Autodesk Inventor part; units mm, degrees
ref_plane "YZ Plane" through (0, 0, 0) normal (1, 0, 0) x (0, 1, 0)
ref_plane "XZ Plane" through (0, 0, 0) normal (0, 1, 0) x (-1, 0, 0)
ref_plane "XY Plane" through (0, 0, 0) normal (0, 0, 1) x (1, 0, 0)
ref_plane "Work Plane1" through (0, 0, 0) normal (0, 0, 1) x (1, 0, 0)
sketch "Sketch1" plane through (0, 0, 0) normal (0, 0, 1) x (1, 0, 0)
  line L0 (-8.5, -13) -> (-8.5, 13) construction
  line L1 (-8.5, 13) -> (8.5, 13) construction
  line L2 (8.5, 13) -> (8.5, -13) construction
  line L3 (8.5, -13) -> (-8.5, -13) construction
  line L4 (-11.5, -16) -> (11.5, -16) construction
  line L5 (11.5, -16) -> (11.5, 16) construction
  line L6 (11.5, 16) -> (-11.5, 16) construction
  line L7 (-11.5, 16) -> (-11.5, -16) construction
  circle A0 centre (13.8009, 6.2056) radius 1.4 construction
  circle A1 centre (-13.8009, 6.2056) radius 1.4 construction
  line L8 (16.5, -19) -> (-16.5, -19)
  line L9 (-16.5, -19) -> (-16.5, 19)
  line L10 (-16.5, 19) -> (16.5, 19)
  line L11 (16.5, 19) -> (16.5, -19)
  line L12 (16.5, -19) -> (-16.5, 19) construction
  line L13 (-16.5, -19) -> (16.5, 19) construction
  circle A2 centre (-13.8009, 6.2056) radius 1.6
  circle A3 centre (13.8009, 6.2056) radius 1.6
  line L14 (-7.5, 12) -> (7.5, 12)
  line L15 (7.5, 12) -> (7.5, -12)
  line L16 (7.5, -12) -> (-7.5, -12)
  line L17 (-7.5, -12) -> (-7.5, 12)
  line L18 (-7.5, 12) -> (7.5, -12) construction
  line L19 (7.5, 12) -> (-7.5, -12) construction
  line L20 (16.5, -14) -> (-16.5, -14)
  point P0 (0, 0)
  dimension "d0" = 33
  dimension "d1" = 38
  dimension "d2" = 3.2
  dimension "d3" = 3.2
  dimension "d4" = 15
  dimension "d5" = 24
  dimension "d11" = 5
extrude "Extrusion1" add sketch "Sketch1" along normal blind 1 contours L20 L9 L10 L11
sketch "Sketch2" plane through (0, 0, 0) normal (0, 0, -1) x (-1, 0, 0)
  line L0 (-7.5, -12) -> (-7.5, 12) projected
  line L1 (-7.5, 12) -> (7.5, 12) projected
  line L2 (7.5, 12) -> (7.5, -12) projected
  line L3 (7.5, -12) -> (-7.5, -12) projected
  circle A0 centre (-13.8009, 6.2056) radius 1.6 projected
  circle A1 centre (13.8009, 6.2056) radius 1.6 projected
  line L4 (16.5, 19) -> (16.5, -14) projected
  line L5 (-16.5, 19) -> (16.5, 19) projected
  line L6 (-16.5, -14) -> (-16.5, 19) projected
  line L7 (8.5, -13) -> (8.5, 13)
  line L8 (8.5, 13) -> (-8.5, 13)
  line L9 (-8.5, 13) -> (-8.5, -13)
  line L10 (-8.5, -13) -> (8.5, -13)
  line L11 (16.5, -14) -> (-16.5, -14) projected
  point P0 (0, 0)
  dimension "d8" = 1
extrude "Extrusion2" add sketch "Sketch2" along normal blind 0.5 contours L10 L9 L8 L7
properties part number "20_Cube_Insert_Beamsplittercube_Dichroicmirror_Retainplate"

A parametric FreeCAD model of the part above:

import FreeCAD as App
import Part
import Sketcher
from FreeCAD import Vector

doc = App.newDocument("Part")
body = doc.addObject("PartDesign::Body", "Body")

# Sketch on XY plane
sketch1 = doc.addObject("Sketcher::SketchObject", "Sketch")
body.addObject(sketch1)
sketch1.AttachmentSupport = (doc.XY_Plane, [""])
sketch1.MapMode = "FlatFace"
sketch1.addGeometry(Part.LineSegment(Vector(-16.5, -14, 0), Vector(16.5, -14, 0)), False)
sketch1.addGeometry(Part.LineSegment(Vector(16.5, -14, 0), Vector(16.5, 19, 0)), False)
sketch1.addGeometry(Part.LineSegment(Vector(16.5, 19, 0), Vector(-16.5, 19, 0)), False)
sketch1.addGeometry(Part.LineSegment(Vector(-16.5, 19, 0), Vector(-16.5, -14, 0)), False)
sketch1.addGeometry(Part.Circle(Vector(-13.8009, 6.2056, 0), Vector(0, 0, 1), 1.6), False)
sketch1.addGeometry(Part.LineSegment(Vector(-7.5, -12, 0), Vector(-7.5, 12, 0)), False)
sketch1.addGeometry(Part.LineSegment(Vector(-7.5, 12, 0), Vector(7.5, 12, 0)), False)
sketch1.addGeometry(Part.LineSegment(Vector(7.5, 12, 0), Vector(7.5, -12, 0)), False)
sketch1.addGeometry(Part.LineSegment(Vector(7.5, -12, 0), Vector(-7.5, -12, 0)), False)
sketch1.addGeometry(Part.Circle(Vector(13.8009, 6.2056, 0), Vector(0, 0, 1), 1.6), False)
sketch1.addConstraint(Sketcher.Constraint("Coincident", 0, 2, 1, 1))
sketch1.addConstraint(Sketcher.Constraint("Coincident", 1, 2, 2, 1))
sketch1.addConstraint(Sketcher.Constraint("Coincident", 2, 2, 3, 1))
sketch1.addConstraint(Sketcher.Constraint("Coincident", 3, 2, 0, 1))
sketch1.addConstraint(Sketcher.Constraint("Coincident", 5, 2, 6, 1))
sketch1.addConstraint(Sketcher.Constraint("Coincident", 6, 2, 7, 1))
sketch1.addConstraint(Sketcher.Constraint("Coincident", 7, 2, 8, 1))
sketch1.addConstraint(Sketcher.Constraint("Coincident", 8, 2, 5, 1))
sketch1.addConstraint(Sketcher.Constraint("Horizontal", 0))
sketch1.addConstraint(Sketcher.Constraint("Vertical", 1))
sketch1.addConstraint(Sketcher.Constraint("Horizontal", 2))
sketch1.addConstraint(Sketcher.Constraint("Vertical", 3))
sketch1.addConstraint(Sketcher.Constraint("Vertical", 5))
sketch1.addConstraint(Sketcher.Constraint("Horizontal", 6))
sketch1.addConstraint(Sketcher.Constraint("Vertical", 7))
sketch1.addConstraint(Sketcher.Constraint("Horizontal", 8))
sketch1.addConstraint(Sketcher.Constraint("Equal", 4, 9))
sketch1.addConstraint(Sketcher.Constraint("Symmetric", 5, 2, 7, 2, -1, 1))
sketch1.addConstraint(Sketcher.Constraint("Symmetric", 4, 3, 9, 3, -2))
sketch1.addConstraint(Sketcher.Constraint("Equal", 2, 1))
sketch1.addConstraint(Sketcher.Constraint("Diameter", 4, 3.2))
sketch1.addConstraint(Sketcher.Constraint("DistanceX", 0, 1, 0, 2, 33.0))
sketch1.addConstraint(Sketcher.Constraint("DistanceX", 6, 1, 6, 2, 15.0))
sketch1.addConstraint(Sketcher.Constraint("DistanceY", 5, 1, 5, 2, 24.0))
sketch1.addConstraint(Sketcher.Constraint("DistanceX", 5, 2, 1, 2, 24.0))
sketch1.addConstraint(Sketcher.Constraint("DistanceY", 0, 2, -1, 1, 14.0))
sketch1.addConstraint(Sketcher.Constraint("DistanceX", 4, 3, -1, 1, 13.801))
sketch1.addConstraint(Sketcher.Constraint("DistanceY", -1, 1, 4, 3, 6.2056))
pad1 = doc.addObject("PartDesign::Pad", "Pad")
body.addObject(pad1)
pad1.Profile = sketch1
pad1.Length = 1

# Sketch on XY plane
sketch2 = doc.addObject("Sketcher::SketchObject", "Sketch001")
body.addObject(sketch2)
sketch2.AttachmentSupport = (doc.XY_Plane, [""])
sketch2.MapMode = "FlatFace"
sketch2.addGeometry(Part.LineSegment(Vector(8.5, -13, 0), Vector(-8.5, -13, 0)), False)
sketch2.addGeometry(Part.LineSegment(Vector(-8.5, -13, 0), Vector(-8.5, 13, 0)), False)
sketch2.addGeometry(Part.LineSegment(Vector(-8.5, 13, 0), Vector(8.5, 13, 0)), False)
sketch2.addGeometry(Part.LineSegment(Vector(8.5, 13, 0), Vector(8.5, -13, 0)), False)
sketch2.addGeometry(Part.LineSegment(Vector(-7.5, -12, 0), Vector(7.5, -12, 0)), False)
sketch2.addGeometry(Part.LineSegment(Vector(7.5, -12, 0), Vector(7.5, 12, 0)), False)
sketch2.addGeometry(Part.LineSegment(Vector(7.5, 12, 0), Vector(-7.5, 12, 0)), False)
sketch2.addGeometry(Part.LineSegment(Vector(-7.5, 12, 0), Vector(-7.5, -12, 0)), False)
sketch2.addConstraint(Sketcher.Constraint("Coincident", 0, 2, 1, 1))
sketch2.addConstraint(Sketcher.Constraint("Coincident", 1, 2, 2, 1))
sketch2.addConstraint(Sketcher.Constraint("Coincident", 2, 2, 3, 1))
sketch2.addConstraint(Sketcher.Constraint("Coincident", 3, 2, 0, 1))
sketch2.addConstraint(Sketcher.Constraint("Coincident", 4, 2, 5, 1))
sketch2.addConstraint(Sketcher.Constraint("Coincident", 5, 2, 6, 1))
sketch2.addConstraint(Sketcher.Constraint("Coincident", 6, 2, 7, 1))
sketch2.addConstraint(Sketcher.Constraint("Coincident", 7, 2, 4, 1))
sketch2.addConstraint(Sketcher.Constraint("Horizontal", 0))
sketch2.addConstraint(Sketcher.Constraint("Vertical", 1))
sketch2.addConstraint(Sketcher.Constraint("Horizontal", 2))
sketch2.addConstraint(Sketcher.Constraint("Vertical", 3))
sketch2.addConstraint(Sketcher.Constraint("Horizontal", 4))
sketch2.addConstraint(Sketcher.Constraint("Vertical", 5))
sketch2.addConstraint(Sketcher.Constraint("Horizontal", 6))
sketch2.addConstraint(Sketcher.Constraint("Vertical", 7))
sketch2.addConstraint(Sketcher.Constraint("Symmetric", 0, 2, 2, 2, -1, 1))
sketch2.addConstraint(Sketcher.Constraint("Symmetric", 4, 2, 6, 2, -1, 1))
sketch2.addConstraint(Sketcher.Constraint("DistanceX", 4, 2, 3, 2, 1.0))
sketch2.addConstraint(Sketcher.Constraint("DistanceY", 3, 2, 4, 2, 1.0))
sketch2.addConstraint(Sketcher.Constraint("DistanceX", 0, 2, 0, 1, 17.0))
sketch2.addConstraint(Sketcher.Constraint("DistanceY", 1, 1, 1, 2, 26.0))
pad2 = doc.addObject("PartDesign::Pad", "Pad001")
body.addObject(pad2)
pad2.Profile = sketch2
pad2.Length = 0.5
pad2.Reversed = True

doc.recompute()
